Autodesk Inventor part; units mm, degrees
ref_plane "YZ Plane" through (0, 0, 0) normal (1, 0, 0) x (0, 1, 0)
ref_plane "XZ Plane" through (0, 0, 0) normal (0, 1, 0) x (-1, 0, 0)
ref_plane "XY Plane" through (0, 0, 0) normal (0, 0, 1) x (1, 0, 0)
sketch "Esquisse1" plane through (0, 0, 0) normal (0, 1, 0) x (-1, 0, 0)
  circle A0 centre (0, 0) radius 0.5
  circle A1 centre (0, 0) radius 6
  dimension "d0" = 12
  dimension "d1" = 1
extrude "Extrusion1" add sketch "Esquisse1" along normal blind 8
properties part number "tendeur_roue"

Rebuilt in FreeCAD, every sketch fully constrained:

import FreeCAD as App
import Part
import Sketcher

V = App.Vector
Q = App.Units.Quantity

doc = App.newDocument("Part")
params = doc.addObject("Spreadsheet::Sheet", "Params")
for row, (alias, value) in enumerate([
    ("sketch1_diameter", "12 mm"),
    ("sketch1_diameter2", "1 mm"),
    ("pad1_length", "8 mm"),
], start=1):
    params.set(f"A{row}", alias)
    params.set(f"B{row}", "=" + value)
    params.setAlias(f"B{row}", alias)

body = doc.addObject("PartDesign::Body", "Body")

# Sketch on XZ plane
sketch1 = body.newObject("Sketcher::SketchObject", "Sketch")
sketch1.AttachmentSupport = (doc.getObject("XZ_Plane"), [""])
sketch1.MapMode = "FlatFace"
sketch1.addGeometry([
    Part.Circle(V(0, 0, 0), V(0, 0, 1), 6),
    Part.Circle(V(0, 0, 0), V(0, 0, 1), 0.5),
], False)
sketch1.addConstraint([
    Sketcher.Constraint("Coincident", 0, 3, -1, 1),
    Sketcher.Constraint("Coincident", 1, 3, -1, 1),
    Sketcher.Constraint("Diameter", 0, Q("12 mm")),
    Sketcher.Constraint("Diameter", 1, Q("1 mm")),
])
sketch1.setExpression("Constraints[2]", "Params.sketch1_diameter")
sketch1.setExpression("Constraints[3]", "Params.sketch1_diameter2")
pad1 = body.newObject("PartDesign::Pad", "Pad")
pad1.Profile = sketch1
pad1.setExpression("Length", "Params.pad1_length")
pad1.Reversed = True

doc.recompute()
